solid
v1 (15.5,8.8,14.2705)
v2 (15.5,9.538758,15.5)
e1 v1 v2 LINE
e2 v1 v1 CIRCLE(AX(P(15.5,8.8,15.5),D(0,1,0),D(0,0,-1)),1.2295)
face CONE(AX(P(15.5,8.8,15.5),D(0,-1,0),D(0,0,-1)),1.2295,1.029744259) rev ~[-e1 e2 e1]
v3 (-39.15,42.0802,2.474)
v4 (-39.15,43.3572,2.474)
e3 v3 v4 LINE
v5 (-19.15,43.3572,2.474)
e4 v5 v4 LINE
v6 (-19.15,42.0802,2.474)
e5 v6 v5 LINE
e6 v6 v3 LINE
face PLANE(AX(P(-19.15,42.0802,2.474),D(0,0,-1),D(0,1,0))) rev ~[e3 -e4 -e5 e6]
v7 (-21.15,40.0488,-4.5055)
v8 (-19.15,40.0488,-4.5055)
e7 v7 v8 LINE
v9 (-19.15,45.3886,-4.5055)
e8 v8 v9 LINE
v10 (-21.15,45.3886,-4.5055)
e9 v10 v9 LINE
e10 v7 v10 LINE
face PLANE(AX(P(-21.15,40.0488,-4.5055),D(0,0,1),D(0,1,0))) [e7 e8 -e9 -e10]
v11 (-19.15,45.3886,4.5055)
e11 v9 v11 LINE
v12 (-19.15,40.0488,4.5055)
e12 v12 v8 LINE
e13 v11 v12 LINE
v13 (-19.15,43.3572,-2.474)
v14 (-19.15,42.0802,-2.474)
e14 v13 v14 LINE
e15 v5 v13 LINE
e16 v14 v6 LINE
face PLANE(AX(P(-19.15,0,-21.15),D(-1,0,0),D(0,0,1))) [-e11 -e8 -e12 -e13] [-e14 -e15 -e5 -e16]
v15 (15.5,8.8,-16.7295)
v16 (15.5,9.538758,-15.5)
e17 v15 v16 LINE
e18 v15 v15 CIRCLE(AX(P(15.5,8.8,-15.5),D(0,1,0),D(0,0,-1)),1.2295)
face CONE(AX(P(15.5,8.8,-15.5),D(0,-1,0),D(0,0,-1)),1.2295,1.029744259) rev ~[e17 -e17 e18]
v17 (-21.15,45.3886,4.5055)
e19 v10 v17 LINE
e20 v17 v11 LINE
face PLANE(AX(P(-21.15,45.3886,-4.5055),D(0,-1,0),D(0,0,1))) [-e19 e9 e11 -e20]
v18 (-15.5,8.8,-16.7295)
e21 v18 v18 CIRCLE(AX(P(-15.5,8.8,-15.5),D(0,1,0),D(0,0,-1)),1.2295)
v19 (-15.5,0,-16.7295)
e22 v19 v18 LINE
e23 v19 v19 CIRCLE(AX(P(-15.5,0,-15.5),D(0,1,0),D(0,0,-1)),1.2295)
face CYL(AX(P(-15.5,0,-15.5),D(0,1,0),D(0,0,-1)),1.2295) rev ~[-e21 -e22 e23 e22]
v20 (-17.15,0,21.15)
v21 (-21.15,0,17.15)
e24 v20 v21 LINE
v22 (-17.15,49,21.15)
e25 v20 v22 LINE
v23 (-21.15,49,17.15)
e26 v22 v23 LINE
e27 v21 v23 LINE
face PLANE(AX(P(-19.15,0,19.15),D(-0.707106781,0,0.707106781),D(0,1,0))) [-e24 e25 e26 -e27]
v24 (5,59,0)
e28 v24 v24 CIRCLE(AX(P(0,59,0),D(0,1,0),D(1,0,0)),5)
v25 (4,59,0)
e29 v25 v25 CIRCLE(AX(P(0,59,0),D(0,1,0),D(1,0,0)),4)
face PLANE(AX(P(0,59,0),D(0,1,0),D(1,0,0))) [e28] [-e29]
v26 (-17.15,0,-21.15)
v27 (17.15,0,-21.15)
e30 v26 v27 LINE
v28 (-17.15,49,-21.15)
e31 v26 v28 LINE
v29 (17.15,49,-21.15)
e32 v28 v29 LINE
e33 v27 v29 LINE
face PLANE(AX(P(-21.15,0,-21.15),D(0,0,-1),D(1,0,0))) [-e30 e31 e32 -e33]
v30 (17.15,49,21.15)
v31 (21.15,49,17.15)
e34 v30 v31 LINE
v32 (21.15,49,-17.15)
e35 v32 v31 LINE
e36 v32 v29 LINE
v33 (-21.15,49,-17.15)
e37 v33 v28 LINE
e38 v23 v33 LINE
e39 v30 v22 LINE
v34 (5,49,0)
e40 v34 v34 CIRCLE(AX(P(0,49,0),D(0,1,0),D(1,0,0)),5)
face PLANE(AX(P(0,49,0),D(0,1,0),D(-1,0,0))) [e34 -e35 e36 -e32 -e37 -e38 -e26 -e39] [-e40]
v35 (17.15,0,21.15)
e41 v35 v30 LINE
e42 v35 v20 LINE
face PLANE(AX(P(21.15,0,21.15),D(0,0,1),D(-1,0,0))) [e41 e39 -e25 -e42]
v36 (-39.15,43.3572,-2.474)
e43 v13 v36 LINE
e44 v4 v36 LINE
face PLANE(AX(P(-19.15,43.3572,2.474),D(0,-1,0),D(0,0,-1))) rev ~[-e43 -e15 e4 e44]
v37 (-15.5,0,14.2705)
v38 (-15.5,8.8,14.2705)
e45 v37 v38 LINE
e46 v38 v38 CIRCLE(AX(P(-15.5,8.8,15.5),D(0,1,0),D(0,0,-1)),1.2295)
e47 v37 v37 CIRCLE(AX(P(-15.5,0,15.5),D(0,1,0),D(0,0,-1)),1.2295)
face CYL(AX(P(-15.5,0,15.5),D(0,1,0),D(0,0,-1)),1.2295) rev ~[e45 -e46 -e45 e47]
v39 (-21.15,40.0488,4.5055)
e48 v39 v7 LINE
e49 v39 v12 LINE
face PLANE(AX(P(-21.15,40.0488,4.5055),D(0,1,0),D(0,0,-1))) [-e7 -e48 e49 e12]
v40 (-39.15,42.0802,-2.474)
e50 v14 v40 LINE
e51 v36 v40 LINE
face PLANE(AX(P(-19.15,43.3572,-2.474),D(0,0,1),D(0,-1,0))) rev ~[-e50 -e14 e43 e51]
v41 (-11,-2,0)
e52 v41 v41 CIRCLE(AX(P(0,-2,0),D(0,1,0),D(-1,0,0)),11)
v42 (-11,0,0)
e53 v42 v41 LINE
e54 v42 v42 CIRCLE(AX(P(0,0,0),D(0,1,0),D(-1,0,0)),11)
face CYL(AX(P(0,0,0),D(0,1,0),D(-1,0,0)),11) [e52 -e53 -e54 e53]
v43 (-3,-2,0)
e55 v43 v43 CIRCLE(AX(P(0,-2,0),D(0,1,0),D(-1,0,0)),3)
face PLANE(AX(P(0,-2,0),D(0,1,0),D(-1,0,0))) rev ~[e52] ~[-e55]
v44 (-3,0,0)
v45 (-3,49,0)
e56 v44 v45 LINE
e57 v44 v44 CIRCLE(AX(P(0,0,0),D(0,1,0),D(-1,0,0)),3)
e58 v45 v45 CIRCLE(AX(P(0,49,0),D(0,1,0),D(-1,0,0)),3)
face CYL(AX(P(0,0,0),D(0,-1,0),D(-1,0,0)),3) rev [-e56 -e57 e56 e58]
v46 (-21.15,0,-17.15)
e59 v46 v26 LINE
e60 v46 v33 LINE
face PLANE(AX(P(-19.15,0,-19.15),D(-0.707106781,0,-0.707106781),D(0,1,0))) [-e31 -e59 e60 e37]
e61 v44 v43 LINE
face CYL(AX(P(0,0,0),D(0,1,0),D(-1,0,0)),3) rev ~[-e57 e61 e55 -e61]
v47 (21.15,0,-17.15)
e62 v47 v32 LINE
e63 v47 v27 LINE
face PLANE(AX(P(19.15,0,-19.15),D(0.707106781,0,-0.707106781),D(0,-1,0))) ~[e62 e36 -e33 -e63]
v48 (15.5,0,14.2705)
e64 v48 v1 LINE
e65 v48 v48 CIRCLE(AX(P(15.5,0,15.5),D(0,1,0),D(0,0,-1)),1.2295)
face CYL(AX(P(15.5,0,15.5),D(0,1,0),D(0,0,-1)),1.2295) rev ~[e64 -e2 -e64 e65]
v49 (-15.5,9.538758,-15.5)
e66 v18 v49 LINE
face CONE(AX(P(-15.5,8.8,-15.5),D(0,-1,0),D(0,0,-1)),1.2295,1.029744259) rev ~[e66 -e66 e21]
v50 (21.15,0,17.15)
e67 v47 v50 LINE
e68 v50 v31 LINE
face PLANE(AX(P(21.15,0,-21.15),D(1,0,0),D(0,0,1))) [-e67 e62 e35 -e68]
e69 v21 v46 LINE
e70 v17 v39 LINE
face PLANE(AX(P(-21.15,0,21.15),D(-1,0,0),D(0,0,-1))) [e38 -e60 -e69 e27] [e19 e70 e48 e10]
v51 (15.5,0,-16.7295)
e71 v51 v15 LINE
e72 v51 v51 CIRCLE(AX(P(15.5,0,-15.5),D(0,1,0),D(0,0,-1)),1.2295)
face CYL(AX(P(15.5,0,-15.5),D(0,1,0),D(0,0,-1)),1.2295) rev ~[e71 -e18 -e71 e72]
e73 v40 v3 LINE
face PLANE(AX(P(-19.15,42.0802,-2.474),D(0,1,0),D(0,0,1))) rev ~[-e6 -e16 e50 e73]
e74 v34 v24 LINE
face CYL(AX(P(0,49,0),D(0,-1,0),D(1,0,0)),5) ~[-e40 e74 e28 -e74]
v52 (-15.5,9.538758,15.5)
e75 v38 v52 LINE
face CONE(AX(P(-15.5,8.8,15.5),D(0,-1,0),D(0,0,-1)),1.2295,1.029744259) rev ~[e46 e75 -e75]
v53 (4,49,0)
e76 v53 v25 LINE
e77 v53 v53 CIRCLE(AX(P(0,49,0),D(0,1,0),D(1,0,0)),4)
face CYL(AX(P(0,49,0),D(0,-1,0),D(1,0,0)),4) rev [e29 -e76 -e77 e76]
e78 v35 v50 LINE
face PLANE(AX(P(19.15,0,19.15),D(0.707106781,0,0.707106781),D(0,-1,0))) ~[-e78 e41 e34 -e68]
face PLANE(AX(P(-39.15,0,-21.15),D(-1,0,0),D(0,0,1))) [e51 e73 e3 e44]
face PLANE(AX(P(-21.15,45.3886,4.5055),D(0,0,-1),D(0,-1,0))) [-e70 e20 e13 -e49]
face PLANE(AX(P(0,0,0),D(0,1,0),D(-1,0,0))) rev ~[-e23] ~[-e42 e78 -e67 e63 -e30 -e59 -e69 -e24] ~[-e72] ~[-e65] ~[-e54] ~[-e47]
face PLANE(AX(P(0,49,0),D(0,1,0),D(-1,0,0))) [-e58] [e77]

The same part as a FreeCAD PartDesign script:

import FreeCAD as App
import Part
import Sketcher


def edges_at(feature, points):
    """Names of the edges that pass closest to the given points."""
    edges = feature.Shape.Edges
    near = lambda p: min(range(len(edges)), key=lambda i: edges[i].distToShape(Part.Vertex(*p))[0])
    return sorted({f"Edge{near(p) + 1}" for p in points})


def add_polygon(sketch, points):
    """Adds a closed chain of lines whose ends are joined by coincident constraints."""
    first, n = sketch.GeometryCount, len(points)
    for a, b in zip(points, points[1:] + points[:1]):
        sketch.addGeometry(Part.LineSegment(App.Vector(*a, 0), App.Vector(*b, 0)), False)
    for i in range(n):
        sketch.addConstraint(Sketcher.Constraint("Coincident", first + i, 2, first + (i + 1) % n, 1))

doc = App.newDocument("Part")
body = doc.addObject("PartDesign::Body", "Body")

# Sketch on XZ plane
sketch1 = doc.addObject("Sketcher::SketchObject", "Sketch")
body.addObject(sketch1)
sketch1.AttachmentSupport = (doc.XZ_Plane, [""])
sketch1.MapMode = "FlatFace"
add_polygon(sketch1, [(-21.1, 21.1), (21.1, 21.1), (21.1, -21.1), (-21.1, -21.1)])  # lines 0-3
sketch1.addGeometry(Part.Circle(App.Vector(0, 0, 0), App.Vector(0, 0, 1), 3), False)  # 4
sketch1.addConstraint([
    Sketcher.Constraint("Horizontal", 0),
    Sketcher.Constraint("Vertical", 1),
    Sketcher.Constraint("Horizontal", 2),
    Sketcher.Constraint("Vertical", 3),
    Sketcher.Constraint("Coincident", 4, 3, -1, 1),
    Sketcher.Constraint("Symmetric", 0, 2, 2, 2, -1, 1),
    Sketcher.Constraint("Equal", 2, 1),
    Sketcher.Constraint("Diameter", 4, 6.0),
    Sketcher.Constraint("DistanceX", 0, 1, 0, 2, 42.3),
])
pad1 = doc.addObject("PartDesign::Pad", "Pad")
body.addObject(pad1)
pad1.Profile = sketch1
pad1.Length = 49
pad1.Reversed = True

# Sketch on YZ plane
sketch2 = doc.addObject("Sketcher::SketchObject", "Sketch001")
body.addObject(sketch2)
sketch2.AttachmentSupport = (doc.YZ_Plane, [""])
sketch2.MapMode = "FlatFace"
sketch2.AttachmentOffset = App.Placement(App.Vector(0, 0, -21.15), App.Rotation())
add_polygon(sketch2, [(40, -5), (40, 5), (45, 5), (45, -5)])  # lines 0-3
sketch2.addConstraint([
    Sketcher.Constraint("Vertical", 0),
    Sketcher.Constraint("Horizontal", 1),
    Sketcher.Constraint("Vertical", 2),
    Sketcher.Constraint("Horizontal", 3),
    Sketcher.Constraint("DistanceY", 0, 1, 0, 2, 9.011),
    Sketcher.Constraint("DistanceX", 1, 1, 1, 2, 5.3398),
    Sketcher.Constraint("DistanceX", -1, 1, 0, 2, 40.0488),
    Sketcher.Constraint("DistanceY", -1, 1, 0, 2, 4.5055),
])
pocket1 = doc.addObject("PartDesign::Pocket", "Pocket")
body.addObject(pocket1)
pocket1.Profile = sketch2
pocket1.Length = 2
pocket1.Reversed = True

# Sketch on YZ plane
sketch3 = doc.addObject("Sketcher::SketchObject", "Sketch002")
body.addObject(sketch3)
sketch3.AttachmentSupport = (doc.YZ_Plane, [""])
sketch3.MapMode = "FlatFace"
sketch3.AttachmentOffset = App.Placement(App.Vector(0, 0, -19.15), App.Rotation())
add_polygon(sketch3, [(43.4, -2.5), (42.1, -2.5), (42.1, 2.5), (43.4, 2.5)])  # lines 0-3
sketch3.addConstraint([
    Sketcher.Constraint("Horizontal", 0),
    Sketcher.Constraint("Vertical", 1),
    Sketcher.Constraint("Horizontal", 2),
    Sketcher.Constraint("Vertical", 3),
    Sketcher.Constraint("DistanceX", 0, 2, 0, 1, 1.277),
    Sketcher.Constraint("DistanceY", 1, 1, 1, 2, 4.948),
    Sketcher.Constraint("DistanceY", 0, 2, -1, 1, 2.474),
    Sketcher.Constraint("DistanceX", -1, 1, 0, 2, 42.0802),
])
pad2 = doc.addObject("PartDesign::Pad", "Pad001")
body.addObject(pad2)
pad2.Profile = sketch3
pad2.Length = 20
pad2.Reversed = True
doc.recompute()

chamfer = doc.addObject("PartDesign::Chamfer", "Chamfer")
body.addObject(chamfer)
chamfer.Base = (pad2, edges_at(pad2, [
    (-21.15, 24.5, 21.15),
    (21.15, 24.5, 21.15),
    (21.15, 24.5, -21.15),
    (-21.15, 24.5, -21.15),
]))
chamfer.Size = 4

# Sketch on XZ plane
sketch4 = doc.addObject("Sketcher::SketchObject", "Sketch003")
body.addObject(sketch4)
sketch4.AttachmentSupport = (doc.XZ_Plane, [""])
sketch4.MapMode = "FlatFace"
sketch4.addGeometry([
    Part.Circle(App.Vector(0, 0, 0), App.Vector(0, 0, 1), 11),
    Part.Circle(App.Vector(0, 0, 0), App.Vector(0, 0, 1), 3),
], False)
sketch4.addConstraint([
    Sketcher.Constraint("Coincident", 0, 3, -1, 1),
    Sketcher.Constraint("Coincident", 1, 3, -1, 1),
    Sketcher.Constraint("Diameter", 0, 22.0),
    Sketcher.Constraint("Diameter", 1, 6.0),
])
pad3 = doc.addObject("PartDesign::Pad", "Pad002")
body.addObject(pad3)
pad3.Profile = sketch4
pad3.Length = 2

# Sketch on XZ plane
sketch5 = doc.addObject("Sketcher::SketchObject", "Sketch004")
body.addObject(sketch5)
sketch5.AttachmentSupport = (doc.XZ_Plane, [""])
sketch5.MapMode = "FlatFace"
sketch5.AttachmentOffset = App.Placement(App.Vector(0, 0, -49), App.Rotation())
sketch5.addGeometry([
    Part.Circle(App.Vector(0, 0, 0), App.Vector(0, 0, 1), 5),
    Part.Circle(App.Vector(0, 0, 0), App.Vector(0, 0, 1), 4),
], False)
sketch5.addConstraint([
    Sketcher.Constraint("Coincident", 0, 3, -1, 1),
    Sketcher.Constraint("Coincident", 1, 3, -1, 1),
    Sketcher.Constraint("Diameter", 0, 10.0),
    Sketcher.Constraint("Diameter", 1, 8.0),
])
pad4 = doc.addObject("PartDesign::Pad", "Pad003")
body.addObject(pad4)
pad4.Profile = sketch5
pad4.Length = 10
pad4.Reversed = True

# Sketch on XZ plane
sketch6 = doc.addObject("Sketcher::SketchObject", "Sketch005")
body.addObject(sketch6)
sketch6.AttachmentSupport = (doc.XZ_Plane, [""])
sketch6.MapMode = "FlatFace"
sketch6.addGeometry([
    Part.Circle(App.Vector(-15.5, -15.5, 0), App.Vector(0, 0, 1), 1.2),
    Part.Circle(App.Vector(15.5, -15.5, 0), App.Vector(0, 0, 1), 1.2),
    Part.Circle(App.Vector(15.5, 15.5, 0), App.Vector(0, 0, 1), 1.2),
    Part.Circle(App.Vector(-15.5, 15.5, 0), App.Vector(0, 0, 1), 1.2),
], False)
sketch6.addConstraint([
    Sketcher.Constraint("Equal", 0, 1),
    Sketcher.Constraint("Equal", 1, 2),
    Sketcher.Constraint("Equal", 2, 3),
    Sketcher.Constraint("Symmetric", 0, 3, 2, 3, -1, 1),
    Sketcher.Constraint("Symmetric", 1, 3, 3, 3, -1, 1),
    Sketcher.Constraint("Symmetric", 0, 3, 1, 3, -2),
    Sketcher.Constraint("Diameter", 0, 2.459),
    Sketcher.Constraint("DistanceX", 0, 3, 1, 3, 31.0),
    Sketcher.Constraint("DistanceY", 1, 3, 2, 3, 31.0),
])
doc.recompute()
hole = doc.addObject("PartDesign::Hole", "Hole")
body.addObject(hole)
hole.Profile = sketch6
hole.ThreadType = "None"
hole.Diameter = 2.459
hole.DepthType = "Dimension"
hole.Depth = 8.8
hole.DrillPoint = "Angled"
hole.DrillPointAngle = 118

doc.recompute()
